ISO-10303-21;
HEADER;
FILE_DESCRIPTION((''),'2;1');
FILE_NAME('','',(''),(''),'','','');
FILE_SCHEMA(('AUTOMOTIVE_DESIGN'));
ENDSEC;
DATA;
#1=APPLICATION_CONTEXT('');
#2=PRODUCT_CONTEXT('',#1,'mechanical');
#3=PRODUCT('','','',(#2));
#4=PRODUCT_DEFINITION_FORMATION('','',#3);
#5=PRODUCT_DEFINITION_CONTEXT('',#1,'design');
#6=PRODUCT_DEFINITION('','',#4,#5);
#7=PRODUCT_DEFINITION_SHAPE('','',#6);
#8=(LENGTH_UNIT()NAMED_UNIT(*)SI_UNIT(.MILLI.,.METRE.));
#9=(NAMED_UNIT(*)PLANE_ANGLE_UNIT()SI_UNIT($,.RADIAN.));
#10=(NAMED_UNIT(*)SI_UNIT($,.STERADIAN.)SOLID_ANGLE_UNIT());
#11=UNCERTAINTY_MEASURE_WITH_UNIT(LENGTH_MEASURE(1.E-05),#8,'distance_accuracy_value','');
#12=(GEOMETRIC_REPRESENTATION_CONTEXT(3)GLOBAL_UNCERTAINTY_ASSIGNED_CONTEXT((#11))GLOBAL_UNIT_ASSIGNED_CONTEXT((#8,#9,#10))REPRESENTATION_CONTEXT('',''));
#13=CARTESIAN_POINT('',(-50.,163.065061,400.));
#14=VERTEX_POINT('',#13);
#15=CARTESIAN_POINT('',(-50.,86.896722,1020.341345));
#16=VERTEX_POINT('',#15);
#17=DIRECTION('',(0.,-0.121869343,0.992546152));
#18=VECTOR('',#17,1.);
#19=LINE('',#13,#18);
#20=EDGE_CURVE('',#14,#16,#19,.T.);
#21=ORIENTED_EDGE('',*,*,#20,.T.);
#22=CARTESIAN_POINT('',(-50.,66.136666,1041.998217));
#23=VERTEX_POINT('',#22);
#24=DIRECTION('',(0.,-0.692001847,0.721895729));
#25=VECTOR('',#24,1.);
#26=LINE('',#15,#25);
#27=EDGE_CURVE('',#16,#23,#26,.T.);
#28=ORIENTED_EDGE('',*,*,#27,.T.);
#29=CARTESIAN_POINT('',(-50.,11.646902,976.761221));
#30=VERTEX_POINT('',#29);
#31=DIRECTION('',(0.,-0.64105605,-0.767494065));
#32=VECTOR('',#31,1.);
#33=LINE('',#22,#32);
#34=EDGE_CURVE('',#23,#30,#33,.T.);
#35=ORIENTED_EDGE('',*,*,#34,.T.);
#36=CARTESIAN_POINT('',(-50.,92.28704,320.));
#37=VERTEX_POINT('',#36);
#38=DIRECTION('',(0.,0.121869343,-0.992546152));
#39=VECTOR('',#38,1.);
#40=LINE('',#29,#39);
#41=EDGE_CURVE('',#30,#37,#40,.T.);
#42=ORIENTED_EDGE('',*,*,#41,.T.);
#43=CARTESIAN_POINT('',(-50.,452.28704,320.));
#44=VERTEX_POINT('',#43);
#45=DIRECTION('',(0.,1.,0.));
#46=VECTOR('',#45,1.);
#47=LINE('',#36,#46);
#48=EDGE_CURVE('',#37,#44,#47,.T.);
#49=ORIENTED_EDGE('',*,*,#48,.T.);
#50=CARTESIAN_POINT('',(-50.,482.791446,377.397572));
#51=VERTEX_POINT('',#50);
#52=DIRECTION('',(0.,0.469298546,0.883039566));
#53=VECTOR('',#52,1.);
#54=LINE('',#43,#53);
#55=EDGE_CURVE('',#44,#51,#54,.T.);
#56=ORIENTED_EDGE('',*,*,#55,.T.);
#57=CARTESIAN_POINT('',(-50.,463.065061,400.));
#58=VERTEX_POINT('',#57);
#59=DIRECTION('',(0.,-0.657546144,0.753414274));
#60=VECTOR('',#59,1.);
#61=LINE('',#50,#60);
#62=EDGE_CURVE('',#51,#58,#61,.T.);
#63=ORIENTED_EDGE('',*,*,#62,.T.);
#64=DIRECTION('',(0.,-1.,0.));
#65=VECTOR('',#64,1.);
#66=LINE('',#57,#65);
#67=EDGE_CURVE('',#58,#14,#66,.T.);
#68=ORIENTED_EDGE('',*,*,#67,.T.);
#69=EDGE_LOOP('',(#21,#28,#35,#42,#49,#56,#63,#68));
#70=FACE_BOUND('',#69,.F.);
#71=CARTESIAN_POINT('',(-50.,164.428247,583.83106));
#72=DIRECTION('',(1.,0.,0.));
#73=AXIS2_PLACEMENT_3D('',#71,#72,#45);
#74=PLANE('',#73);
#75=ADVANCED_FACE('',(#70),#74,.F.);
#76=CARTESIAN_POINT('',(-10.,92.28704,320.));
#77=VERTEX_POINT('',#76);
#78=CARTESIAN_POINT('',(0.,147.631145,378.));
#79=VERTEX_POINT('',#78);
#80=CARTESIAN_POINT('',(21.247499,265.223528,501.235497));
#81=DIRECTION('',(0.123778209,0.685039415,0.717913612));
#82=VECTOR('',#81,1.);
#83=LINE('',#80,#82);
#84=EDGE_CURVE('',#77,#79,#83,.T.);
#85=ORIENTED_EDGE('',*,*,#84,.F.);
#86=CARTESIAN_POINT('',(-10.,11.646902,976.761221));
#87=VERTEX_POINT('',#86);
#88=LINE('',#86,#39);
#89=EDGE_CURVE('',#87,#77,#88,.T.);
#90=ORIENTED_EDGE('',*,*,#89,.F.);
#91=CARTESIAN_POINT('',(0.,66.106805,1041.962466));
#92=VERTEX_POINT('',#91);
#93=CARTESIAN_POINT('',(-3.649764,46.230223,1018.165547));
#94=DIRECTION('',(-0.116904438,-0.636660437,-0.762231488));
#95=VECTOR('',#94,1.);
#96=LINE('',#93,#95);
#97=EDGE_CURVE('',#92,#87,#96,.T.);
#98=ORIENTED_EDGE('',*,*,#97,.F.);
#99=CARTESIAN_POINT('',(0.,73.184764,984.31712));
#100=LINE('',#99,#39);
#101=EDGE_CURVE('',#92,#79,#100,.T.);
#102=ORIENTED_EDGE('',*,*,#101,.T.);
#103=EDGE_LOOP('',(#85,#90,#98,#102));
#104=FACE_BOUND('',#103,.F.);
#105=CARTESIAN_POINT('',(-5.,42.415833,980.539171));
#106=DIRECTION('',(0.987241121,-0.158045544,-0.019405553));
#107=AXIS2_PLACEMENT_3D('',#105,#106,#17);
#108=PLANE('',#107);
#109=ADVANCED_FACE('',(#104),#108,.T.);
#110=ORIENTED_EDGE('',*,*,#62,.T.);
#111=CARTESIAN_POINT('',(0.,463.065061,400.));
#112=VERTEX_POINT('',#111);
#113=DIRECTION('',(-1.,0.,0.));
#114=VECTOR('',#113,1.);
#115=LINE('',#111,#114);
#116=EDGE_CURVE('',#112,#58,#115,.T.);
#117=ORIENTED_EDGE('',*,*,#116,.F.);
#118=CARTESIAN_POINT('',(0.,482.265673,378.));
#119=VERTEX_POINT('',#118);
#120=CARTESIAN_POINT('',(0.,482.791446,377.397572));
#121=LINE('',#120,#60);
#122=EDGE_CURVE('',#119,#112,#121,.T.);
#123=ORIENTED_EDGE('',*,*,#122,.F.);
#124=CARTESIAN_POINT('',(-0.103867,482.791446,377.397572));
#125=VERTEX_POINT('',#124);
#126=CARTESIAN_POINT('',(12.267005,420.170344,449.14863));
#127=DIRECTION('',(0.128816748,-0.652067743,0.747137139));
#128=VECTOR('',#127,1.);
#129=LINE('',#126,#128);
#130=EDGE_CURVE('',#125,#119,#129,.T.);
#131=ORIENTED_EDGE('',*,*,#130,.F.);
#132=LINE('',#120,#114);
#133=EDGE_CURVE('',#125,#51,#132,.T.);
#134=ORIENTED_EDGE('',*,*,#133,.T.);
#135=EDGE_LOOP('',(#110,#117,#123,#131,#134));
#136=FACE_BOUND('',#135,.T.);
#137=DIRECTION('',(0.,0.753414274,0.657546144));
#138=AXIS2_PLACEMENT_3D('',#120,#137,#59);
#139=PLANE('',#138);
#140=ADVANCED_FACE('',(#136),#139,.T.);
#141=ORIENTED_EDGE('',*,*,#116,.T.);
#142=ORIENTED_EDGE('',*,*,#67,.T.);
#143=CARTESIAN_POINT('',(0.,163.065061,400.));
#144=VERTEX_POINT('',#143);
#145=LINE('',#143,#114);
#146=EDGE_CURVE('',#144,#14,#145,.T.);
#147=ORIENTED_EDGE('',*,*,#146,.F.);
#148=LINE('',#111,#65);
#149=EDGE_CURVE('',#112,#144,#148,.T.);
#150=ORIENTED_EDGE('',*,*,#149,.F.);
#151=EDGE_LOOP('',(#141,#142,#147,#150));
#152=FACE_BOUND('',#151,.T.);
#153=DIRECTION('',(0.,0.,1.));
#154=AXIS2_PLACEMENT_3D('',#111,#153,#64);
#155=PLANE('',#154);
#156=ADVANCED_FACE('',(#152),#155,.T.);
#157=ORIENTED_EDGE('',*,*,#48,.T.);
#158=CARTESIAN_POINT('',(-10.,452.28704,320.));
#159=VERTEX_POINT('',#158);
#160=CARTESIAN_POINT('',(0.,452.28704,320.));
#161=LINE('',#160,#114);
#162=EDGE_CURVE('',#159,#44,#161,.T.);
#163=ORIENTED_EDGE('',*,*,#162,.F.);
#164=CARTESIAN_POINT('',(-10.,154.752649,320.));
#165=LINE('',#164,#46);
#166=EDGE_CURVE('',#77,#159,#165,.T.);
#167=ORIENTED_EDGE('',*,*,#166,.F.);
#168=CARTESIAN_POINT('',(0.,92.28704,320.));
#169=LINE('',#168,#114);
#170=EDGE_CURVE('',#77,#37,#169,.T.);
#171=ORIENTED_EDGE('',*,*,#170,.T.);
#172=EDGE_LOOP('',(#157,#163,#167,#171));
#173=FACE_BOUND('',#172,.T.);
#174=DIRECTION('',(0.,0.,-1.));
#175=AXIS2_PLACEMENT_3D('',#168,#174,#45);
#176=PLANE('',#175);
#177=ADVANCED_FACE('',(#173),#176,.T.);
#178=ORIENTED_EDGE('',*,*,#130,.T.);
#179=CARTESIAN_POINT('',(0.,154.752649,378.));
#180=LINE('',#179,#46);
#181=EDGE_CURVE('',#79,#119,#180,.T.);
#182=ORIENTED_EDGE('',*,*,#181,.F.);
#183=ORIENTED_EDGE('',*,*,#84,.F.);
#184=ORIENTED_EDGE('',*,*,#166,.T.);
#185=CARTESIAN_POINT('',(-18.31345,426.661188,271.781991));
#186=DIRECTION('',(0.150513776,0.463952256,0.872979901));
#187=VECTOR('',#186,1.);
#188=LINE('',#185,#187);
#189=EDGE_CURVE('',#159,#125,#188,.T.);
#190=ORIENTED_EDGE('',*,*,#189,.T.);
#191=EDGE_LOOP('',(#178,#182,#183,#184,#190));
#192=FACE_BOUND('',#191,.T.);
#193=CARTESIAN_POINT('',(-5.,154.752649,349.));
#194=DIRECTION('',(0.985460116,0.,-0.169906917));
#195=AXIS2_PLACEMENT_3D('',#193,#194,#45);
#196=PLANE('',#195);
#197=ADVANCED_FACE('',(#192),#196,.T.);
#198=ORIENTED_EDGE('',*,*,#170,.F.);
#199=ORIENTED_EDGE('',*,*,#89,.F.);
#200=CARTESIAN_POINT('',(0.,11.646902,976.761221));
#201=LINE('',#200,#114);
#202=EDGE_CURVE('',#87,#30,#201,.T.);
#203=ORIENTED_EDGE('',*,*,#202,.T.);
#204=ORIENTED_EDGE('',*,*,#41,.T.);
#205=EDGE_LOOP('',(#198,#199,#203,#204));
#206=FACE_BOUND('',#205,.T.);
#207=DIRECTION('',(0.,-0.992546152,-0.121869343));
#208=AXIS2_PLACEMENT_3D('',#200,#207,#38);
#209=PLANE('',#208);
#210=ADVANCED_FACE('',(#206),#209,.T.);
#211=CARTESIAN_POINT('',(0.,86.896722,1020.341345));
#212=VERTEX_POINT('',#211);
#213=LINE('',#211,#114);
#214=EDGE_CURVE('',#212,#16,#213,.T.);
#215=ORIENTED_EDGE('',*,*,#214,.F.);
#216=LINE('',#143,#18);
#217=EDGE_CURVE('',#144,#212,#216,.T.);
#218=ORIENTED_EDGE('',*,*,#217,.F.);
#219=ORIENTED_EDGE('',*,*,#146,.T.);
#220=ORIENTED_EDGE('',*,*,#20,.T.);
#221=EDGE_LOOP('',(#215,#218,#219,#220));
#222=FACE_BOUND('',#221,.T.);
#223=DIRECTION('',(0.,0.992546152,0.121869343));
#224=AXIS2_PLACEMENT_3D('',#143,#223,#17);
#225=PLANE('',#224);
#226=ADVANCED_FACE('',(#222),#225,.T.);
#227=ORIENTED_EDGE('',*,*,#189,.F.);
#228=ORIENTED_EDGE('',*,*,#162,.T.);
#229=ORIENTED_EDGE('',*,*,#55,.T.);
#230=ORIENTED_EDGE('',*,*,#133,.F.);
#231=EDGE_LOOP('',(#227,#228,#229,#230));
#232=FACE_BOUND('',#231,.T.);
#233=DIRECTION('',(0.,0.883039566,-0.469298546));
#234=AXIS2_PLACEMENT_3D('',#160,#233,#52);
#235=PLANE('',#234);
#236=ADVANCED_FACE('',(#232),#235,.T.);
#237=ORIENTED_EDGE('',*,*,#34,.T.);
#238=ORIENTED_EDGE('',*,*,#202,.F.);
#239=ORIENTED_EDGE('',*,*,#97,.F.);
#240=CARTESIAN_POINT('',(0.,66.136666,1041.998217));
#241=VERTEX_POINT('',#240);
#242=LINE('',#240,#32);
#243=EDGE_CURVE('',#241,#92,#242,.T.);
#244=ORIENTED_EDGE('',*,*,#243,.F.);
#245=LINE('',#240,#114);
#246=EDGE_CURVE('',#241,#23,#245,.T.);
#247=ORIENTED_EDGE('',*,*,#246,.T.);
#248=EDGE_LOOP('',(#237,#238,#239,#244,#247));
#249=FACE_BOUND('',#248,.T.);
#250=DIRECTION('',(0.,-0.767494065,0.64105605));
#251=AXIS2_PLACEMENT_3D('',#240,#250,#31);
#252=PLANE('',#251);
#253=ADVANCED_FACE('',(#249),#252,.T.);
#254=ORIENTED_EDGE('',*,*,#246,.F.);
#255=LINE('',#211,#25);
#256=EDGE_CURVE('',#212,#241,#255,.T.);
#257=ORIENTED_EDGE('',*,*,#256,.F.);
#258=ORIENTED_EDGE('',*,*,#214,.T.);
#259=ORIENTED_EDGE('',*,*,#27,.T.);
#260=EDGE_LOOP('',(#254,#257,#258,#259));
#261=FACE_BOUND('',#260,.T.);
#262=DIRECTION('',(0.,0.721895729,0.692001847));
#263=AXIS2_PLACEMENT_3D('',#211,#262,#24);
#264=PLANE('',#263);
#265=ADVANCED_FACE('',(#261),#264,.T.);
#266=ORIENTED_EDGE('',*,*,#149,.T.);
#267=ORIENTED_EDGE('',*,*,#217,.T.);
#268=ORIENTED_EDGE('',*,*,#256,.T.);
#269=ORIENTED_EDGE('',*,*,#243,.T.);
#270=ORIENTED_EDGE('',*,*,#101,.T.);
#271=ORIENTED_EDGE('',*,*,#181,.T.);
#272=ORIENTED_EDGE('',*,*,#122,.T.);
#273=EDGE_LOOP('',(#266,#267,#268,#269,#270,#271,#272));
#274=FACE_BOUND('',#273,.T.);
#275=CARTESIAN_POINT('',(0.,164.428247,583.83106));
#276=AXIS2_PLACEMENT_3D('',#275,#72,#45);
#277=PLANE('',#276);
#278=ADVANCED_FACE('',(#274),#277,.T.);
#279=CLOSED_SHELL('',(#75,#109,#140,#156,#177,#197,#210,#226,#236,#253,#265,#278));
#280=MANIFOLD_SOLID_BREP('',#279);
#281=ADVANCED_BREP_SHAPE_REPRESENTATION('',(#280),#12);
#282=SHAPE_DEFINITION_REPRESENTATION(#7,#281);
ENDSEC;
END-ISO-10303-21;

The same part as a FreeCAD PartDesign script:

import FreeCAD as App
import Part
import Sketcher
from FreeCAD import Vector
Q = App.Units.Quantity


def edges_at(feature, points):
    """Names of the edges that pass closest to the given points."""
    edges = feature.Shape.Edges
    near = lambda p: min(range(len(edges)), key=lambda i: edges[i].distToShape(Part.Vertex(*p))[0])
    return sorted({f"Edge{near(p) + 1}" for p in points})


def add_polygon(sketch, points):
    """Adds a closed chain of lines whose ends are joined by coincident constraints."""
    first, n = sketch.GeometryCount, len(points)
    for a, b in zip(points, points[1:] + points[:1]):
        sketch.addGeometry(Part.LineSegment(App.Vector(*a, 0), App.Vector(*b, 0)), False)
    for i in range(n):
        sketch.addConstraint(Sketcher.Constraint("Coincident", first + i, 2, first + (i + 1) % n, 1))

doc = App.newDocument("Part")
params = doc.addObject("Spreadsheet::Sheet", "Params")
for row, (alias, value) in enumerate([
    ("sketch1_width", "300 mm"),
    ("sketch1_width2", "360 mm"),
    ("sketch1_length", "30 mm"),
    ("sketch1_length2", "625 mm"),
    ("sketch1_length3", "85 mm"),
    ("pad1_length", "50 mm"),
    ("chamfer_size", "62 mm"),
    ("chamfer_size2", "10 mm"),
    ("chamfer2_size", "10 mm"),
    ("chamfer2_size2", "58 mm"),
], start=1):
    params.set(f"A{row}", alias)
    params.set(f"B{row}", "=" + value)
    params.setAlias(f"B{row}", alias)

body = doc.addObject("PartDesign::Body", "Body")

sketch1 = body.newObject("Sketcher::SketchObject", "Sketch")
sketch1.AttachmentSupport = (doc.getObject("YZ_Plane"), [""])
sketch1.MapMode = "FlatFace"
add_polygon(sketch1, [(483, 377), (463, 400), (163, 400), (87, 1020), (66, 1042), (12, 977), (92, 320), (452, 320)])
sketch1.addConstraint([
    Sketcher.Constraint("Horizontal", 1),
    Sketcher.Constraint("Horizontal", 6),
    Sketcher.Constraint("Parallel", 2, 5),
    Sketcher.Constraint("Equal", 0, 3),
    Sketcher.Constraint("DistanceX", 1, 2, 1, 1, Q("300 mm")),
    Sketcher.Constraint("DistanceX", 6, 1, 6, 2, Q("360 mm")),
    Sketcher.Constraint("Angle", 2, Q("97 deg")),
    Sketcher.Constraint("Distance", 0, Q("30 mm")),
    Sketcher.Constraint("Distance", 2, Q("625 mm")),
    Sketcher.Constraint("Distance", 4, Q("85 mm")),
    Sketcher.Constraint("Distance", 7, Q("65 mm")),
    Sketcher.Constraint("DistanceY", -1, 1, 0, 2, Q("400 mm")),
    Sketcher.Constraint("DistanceY", -1, 1, 5, 2, Q("320 mm")),
    Sketcher.Constraint("DistanceX", -1, 1, 0, 2, Q("463.065061 mm")),
    Sketcher.Constraint("DistanceY", -1, 1, 4, 2, Q("976.761221 mm")),
    Sketcher.Constraint("DistanceX", -1, 1, 5, 2, Q("92.28704 mm")),
])
sketch1.setExpression("Constraints[12]", "Params.sketch1_width")
sketch1.setExpression("Constraints[13]", "Params.sketch1_width2")
sketch1.setExpression("Constraints[15]", "Params.sketch1_length")
sketch1.setExpression("Constraints[16]", "Params.sketch1_length2")
sketch1.setExpression("Constraints[17]", "Params.sketch1_length3")
pad1 = body.newObject("PartDesign::Pad", "Pad")
pad1.Profile = sketch1
pad1.setExpression("Length", "Params.pad1_length")
pad1.Reversed = True
doc.recompute()

chamfer = body.newObject("PartDesign::Chamfer", "Chamfer")
chamfer.Base = (pad1, edges_at(pad1, [(0, 51.967, 648.381)]))
chamfer.ChamferType = "Two distances"
chamfer.setExpression("Size", "Params.chamfer_size")
chamfer.setExpression("Size2", "Params.chamfer_size2")
chamfer.FlipDirection = True
doc.recompute()

chamfer2 = body.newObject("PartDesign::Chamfer", "Chamfer001")
chamfer2.Base = (chamfer, edges_at(chamfer, [(0, 303.52, 320)]))
chamfer2.ChamferType = "Two distances"
chamfer2.setExpression("Size", "Params.chamfer2_size")
chamfer2.setExpression("Size2", "Params.chamfer2_size2")
chamfer2.FlipDirection = True

doc.recompute()
